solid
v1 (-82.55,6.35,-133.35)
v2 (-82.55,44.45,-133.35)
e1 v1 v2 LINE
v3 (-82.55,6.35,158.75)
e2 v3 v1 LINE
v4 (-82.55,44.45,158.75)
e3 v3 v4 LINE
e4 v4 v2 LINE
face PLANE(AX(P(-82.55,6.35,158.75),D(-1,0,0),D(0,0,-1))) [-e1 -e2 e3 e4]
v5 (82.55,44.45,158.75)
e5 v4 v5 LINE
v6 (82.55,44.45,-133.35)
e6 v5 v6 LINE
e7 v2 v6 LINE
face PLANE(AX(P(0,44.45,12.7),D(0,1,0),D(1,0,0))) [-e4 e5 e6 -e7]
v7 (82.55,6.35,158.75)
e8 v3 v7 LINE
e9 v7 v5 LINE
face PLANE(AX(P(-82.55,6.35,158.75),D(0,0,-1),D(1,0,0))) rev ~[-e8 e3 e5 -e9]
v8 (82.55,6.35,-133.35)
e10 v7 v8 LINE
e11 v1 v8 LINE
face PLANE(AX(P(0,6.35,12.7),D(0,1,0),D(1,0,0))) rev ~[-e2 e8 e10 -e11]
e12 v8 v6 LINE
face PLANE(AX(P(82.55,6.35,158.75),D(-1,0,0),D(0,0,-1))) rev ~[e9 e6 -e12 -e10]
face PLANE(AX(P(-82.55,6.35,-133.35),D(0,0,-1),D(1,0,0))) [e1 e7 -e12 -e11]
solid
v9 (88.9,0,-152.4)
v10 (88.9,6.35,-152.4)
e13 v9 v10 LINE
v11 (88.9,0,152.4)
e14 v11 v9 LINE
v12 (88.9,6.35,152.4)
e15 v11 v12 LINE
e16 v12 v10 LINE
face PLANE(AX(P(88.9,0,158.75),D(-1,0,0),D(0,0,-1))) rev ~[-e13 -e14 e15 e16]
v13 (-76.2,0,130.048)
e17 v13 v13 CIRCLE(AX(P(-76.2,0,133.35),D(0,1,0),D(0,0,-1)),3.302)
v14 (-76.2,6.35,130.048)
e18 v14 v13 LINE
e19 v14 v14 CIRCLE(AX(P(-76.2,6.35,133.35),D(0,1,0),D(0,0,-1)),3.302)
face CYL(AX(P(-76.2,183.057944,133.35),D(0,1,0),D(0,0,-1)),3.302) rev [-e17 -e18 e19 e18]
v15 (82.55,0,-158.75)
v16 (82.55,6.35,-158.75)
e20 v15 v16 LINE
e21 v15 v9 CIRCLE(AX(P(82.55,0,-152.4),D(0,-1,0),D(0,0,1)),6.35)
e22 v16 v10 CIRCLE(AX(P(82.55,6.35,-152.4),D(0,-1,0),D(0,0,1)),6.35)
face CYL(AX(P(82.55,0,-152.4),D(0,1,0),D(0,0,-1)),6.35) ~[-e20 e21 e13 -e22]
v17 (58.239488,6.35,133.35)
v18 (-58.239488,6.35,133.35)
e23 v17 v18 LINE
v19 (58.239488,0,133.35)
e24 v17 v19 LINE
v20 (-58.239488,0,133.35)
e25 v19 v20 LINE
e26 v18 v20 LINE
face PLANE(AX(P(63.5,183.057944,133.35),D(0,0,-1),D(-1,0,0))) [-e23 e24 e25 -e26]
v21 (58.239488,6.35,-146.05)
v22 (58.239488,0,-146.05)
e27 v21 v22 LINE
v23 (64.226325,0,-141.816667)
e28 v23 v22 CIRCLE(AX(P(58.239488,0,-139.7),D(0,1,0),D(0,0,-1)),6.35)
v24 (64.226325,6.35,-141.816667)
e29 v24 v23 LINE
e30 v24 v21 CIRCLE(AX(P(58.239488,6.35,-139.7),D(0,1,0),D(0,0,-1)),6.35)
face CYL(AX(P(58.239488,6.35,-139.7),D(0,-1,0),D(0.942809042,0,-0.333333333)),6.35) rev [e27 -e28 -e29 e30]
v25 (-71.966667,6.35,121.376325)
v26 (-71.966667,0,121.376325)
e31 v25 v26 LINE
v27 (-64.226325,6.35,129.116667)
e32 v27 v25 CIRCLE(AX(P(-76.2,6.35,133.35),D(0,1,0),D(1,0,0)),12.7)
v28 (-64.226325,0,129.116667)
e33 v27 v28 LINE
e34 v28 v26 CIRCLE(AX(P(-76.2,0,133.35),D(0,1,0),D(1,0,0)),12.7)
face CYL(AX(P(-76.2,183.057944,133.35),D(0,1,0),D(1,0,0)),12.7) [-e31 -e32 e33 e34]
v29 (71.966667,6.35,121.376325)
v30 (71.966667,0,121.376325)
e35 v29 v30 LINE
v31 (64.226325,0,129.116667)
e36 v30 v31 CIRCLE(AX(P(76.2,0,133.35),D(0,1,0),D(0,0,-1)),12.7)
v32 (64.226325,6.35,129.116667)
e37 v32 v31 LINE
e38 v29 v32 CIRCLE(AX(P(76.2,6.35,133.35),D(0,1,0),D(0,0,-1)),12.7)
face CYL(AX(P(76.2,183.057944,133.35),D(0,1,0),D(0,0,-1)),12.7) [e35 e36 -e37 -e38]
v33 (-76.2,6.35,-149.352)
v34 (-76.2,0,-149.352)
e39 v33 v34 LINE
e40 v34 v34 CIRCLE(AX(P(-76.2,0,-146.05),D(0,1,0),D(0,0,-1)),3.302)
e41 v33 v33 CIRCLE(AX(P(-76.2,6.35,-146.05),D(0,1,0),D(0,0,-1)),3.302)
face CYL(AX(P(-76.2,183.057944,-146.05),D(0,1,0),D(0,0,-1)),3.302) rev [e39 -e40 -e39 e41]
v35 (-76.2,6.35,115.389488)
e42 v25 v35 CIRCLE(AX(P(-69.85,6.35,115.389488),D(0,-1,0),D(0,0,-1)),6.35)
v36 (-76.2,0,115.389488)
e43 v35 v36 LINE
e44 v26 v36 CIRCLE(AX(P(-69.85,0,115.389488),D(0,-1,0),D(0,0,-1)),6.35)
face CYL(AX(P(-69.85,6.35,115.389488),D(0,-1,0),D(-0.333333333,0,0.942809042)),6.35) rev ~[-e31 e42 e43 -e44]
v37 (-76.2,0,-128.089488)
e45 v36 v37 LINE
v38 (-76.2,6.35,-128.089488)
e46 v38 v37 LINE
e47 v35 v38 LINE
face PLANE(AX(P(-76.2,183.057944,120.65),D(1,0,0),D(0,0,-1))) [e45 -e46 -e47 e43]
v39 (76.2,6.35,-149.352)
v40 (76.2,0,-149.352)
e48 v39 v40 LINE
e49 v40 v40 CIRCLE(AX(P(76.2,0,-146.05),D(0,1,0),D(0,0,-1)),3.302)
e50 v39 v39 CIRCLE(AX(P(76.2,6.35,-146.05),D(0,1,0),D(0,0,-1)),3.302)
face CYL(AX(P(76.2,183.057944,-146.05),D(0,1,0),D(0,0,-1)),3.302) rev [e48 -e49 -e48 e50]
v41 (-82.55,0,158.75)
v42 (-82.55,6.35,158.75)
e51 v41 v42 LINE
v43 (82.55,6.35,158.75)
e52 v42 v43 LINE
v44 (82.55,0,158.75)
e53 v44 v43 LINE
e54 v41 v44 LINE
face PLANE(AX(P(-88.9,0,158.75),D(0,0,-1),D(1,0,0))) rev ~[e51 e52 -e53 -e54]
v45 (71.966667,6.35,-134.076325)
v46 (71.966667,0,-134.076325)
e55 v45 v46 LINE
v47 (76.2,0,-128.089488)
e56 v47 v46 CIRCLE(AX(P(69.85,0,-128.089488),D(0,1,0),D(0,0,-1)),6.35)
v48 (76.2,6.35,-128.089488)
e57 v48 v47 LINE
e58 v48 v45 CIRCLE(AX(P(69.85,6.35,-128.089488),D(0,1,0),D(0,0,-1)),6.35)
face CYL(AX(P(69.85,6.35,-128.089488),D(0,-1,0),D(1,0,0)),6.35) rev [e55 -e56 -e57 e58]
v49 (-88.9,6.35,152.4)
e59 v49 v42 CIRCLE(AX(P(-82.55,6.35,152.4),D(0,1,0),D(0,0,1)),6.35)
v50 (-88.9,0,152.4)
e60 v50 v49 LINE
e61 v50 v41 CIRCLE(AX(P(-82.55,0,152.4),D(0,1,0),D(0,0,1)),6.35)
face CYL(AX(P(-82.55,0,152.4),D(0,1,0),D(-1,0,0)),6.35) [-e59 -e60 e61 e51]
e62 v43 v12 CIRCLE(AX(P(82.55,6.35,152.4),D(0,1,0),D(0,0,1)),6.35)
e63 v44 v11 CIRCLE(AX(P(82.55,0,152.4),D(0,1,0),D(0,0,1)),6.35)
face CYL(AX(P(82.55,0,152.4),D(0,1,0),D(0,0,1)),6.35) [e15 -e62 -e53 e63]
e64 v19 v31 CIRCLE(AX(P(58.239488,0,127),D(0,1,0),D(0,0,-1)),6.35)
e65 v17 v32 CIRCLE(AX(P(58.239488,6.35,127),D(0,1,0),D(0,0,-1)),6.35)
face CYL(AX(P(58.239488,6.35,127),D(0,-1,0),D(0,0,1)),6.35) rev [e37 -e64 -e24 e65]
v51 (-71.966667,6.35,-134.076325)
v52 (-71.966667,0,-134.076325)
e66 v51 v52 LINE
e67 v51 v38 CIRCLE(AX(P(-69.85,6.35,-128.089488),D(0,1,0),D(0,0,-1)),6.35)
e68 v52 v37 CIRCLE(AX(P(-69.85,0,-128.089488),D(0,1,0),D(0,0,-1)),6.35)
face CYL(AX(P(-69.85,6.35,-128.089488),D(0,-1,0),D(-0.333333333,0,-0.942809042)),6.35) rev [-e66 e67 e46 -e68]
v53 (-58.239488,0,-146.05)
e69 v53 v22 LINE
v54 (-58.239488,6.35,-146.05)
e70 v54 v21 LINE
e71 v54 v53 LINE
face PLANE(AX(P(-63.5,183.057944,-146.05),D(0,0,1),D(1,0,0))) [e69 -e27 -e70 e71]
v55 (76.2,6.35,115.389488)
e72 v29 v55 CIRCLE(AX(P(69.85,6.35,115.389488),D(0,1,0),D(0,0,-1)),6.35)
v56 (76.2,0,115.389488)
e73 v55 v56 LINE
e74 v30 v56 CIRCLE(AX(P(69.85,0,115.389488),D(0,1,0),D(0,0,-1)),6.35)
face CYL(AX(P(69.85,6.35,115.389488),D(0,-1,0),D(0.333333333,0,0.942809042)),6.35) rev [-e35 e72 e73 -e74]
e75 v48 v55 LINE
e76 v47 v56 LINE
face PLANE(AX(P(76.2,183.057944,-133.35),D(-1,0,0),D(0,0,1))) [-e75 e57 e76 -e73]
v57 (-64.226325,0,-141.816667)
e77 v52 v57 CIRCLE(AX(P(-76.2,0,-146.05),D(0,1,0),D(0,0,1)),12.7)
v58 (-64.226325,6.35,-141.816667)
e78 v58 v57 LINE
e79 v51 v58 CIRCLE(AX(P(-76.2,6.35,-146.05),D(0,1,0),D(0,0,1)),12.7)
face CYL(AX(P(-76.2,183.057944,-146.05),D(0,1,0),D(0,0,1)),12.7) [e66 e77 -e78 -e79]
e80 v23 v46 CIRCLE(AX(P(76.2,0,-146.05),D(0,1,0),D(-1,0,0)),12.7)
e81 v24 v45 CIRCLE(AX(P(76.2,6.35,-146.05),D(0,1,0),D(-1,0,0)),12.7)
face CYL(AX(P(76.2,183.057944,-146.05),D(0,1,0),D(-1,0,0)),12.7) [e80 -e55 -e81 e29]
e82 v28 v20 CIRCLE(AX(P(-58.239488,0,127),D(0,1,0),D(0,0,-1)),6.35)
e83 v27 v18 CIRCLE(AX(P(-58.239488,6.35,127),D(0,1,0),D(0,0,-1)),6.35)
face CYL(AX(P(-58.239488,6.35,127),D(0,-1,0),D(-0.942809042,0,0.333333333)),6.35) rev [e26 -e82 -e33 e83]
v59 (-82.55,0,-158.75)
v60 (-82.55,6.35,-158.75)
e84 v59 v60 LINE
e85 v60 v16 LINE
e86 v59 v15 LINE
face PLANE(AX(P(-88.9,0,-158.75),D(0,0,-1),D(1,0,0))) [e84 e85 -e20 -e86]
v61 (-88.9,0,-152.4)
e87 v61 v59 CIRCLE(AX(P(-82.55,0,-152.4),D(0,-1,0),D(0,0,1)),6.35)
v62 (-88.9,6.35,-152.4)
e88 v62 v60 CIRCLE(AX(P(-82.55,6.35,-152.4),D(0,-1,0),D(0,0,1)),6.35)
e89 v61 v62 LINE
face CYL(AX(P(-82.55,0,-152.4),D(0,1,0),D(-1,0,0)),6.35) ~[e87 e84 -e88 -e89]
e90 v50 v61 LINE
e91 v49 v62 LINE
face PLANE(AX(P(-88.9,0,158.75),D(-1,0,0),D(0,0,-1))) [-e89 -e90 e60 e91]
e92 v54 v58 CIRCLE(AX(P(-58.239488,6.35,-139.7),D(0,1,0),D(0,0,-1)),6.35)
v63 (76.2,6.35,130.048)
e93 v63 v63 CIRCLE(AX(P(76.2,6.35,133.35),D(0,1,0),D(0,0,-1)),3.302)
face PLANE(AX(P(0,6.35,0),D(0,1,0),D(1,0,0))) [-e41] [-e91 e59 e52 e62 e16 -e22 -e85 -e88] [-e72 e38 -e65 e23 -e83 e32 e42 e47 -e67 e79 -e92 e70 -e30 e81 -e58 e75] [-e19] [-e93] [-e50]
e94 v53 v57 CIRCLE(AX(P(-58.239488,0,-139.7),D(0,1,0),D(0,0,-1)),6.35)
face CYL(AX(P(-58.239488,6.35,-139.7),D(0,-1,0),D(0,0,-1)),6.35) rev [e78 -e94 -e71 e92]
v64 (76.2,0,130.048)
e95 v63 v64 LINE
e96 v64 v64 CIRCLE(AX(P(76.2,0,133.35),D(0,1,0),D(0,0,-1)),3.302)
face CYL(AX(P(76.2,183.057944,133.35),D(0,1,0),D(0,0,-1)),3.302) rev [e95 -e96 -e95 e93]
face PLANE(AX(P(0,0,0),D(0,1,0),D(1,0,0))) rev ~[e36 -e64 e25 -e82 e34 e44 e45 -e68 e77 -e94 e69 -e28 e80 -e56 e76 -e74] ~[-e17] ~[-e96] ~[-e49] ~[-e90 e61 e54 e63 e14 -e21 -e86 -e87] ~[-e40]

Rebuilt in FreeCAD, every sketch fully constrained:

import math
import FreeCAD as App
import Part
import Sketcher
Q = App.Units.Quantity


def edges_at(feature, points):
    """Names of the edges that pass closest to the given points."""
    edges = feature.Shape.Edges
    near = lambda p: min(range(len(edges)), key=lambda i: edges[i].distToShape(Part.Vertex(*p))[0])
    return sorted({f"Edge{near(p) + 1}" for p in points})

doc = App.newDocument("Part")
body = doc.addObject("PartDesign::Body", "Body")

sketch1 = body.newObject("Sketcher::SketchObject", "Sketch")
sketch1.AttachmentSupport = (doc.getObject("XZ_Plane"), [""])
sketch1.MapMode = "FlatFace"
sketch1.addGeometry(Part.LineSegment(App.Vector(-89, -159, 0), App.Vector(-89, 159, 0)), False)
sketch1.addGeometry(Part.LineSegment(App.Vector(-89, 159, 0), App.Vector(89, 159, 0)), False)
sketch1.addGeometry(Part.LineSegment(App.Vector(89, 159, 0), App.Vector(89, -159, 0)), False)
sketch1.addGeometry(Part.LineSegment(App.Vector(89, -159, 0), App.Vector(-89, -159, 0)), False)
sketch1.addConstraint(Sketcher.Constraint("Coincident", 0, 2, 1, 1))
sketch1.addConstraint(Sketcher.Constraint("Coincident", 1, 2, 2, 1))
sketch1.addConstraint(Sketcher.Constraint("Coincident", 2, 2, 3, 1))
sketch1.addConstraint(Sketcher.Constraint("Coincident", 3, 2, 0, 1))
sketch1.addConstraint(Sketcher.Constraint("Vertical", 0))
sketch1.addConstraint(Sketcher.Constraint("Horizontal", 1))
sketch1.addConstraint(Sketcher.Constraint("Vertical", 2))
sketch1.addConstraint(Sketcher.Constraint("Horizontal", 3))
sketch1.addConstraint(Sketcher.Constraint("Symmetric", 0, 2, 2, 2, -1, 1))
sketch1.addConstraint(Sketcher.Constraint("DistanceX", 1, 1, 1, 2, Q("7 in")))
sketch1.addConstraint(Sketcher.Constraint("DistanceY", 0, 1, 0, 2, Q("12.5 in")))
pad1 = body.newObject("PartDesign::Pad", "Pad")
pad1.Profile = sketch1
pad1.Length = Q("0.25 in")
pad1.Reversed = True

sketch2 = body.newObject("Sketcher::SketchObject", "Sketch001")
sketch2.AttachmentSupport = (doc.getObject("XZ_Plane"), [""])
sketch2.MapMode = "FlatFace"
sketch2.addGeometry(Part.Circle(App.Vector(-76.2, -146.1, 0), App.Vector(0, 0, 1), 3.3), False)
sketch2.addGeometry(Part.Circle(App.Vector(76.2, -146.1, 0), App.Vector(0, 0, 1), 3.3), False)
sketch2.addGeometry(Part.Circle(App.Vector(76.2, 133.3, 0), App.Vector(0, 0, 1), 3.3), False)
sketch2.addGeometry(Part.Circle(App.Vector(-76.2, 133.3, 0), App.Vector(0, 0, 1), 3.3), False)
sketch2.addConstraint(Sketcher.Constraint("Equal", 0, 1))
sketch2.addConstraint(Sketcher.Constraint("Equal", 1, 2))
sketch2.addConstraint(Sketcher.Constraint("Equal", 2, 3))
sketch2.addConstraint(Sketcher.Constraint("Symmetric", 0, 3, 1, 3, -2))
sketch2.addConstraint(Sketcher.Constraint("Symmetric", 2, 3, 3, 3, -2))
sketch2.addConstraint(Sketcher.Constraint("Vertical", 1, 3, 2, 3))
sketch2.addConstraint(Sketcher.Constraint("Diameter", 0, Q("0.26 in")))
sketch2.addConstraint(Sketcher.Constraint("DistanceX", 0, 3, -1, 1, Q("3 in")))
sketch2.addConstraint(Sketcher.Constraint("DistanceY", 1, 3, 2, 3, Q("11 in")))
sketch2.addConstraint(Sketcher.Constraint("DistanceY", 0, 3, -1, 1, Q("5.75 in")))
pocket1 = body.newObject("PartDesign::Pocket", "Pocket")
pocket1.Profile = sketch2
pocket1.Type = "ThroughAll"
pocket1.Midplane = True

sketch3 = body.newObject("Sketcher::SketchObject", "Sketch002")
sketch3.AttachmentSupport = (doc.getObject("XZ_Plane"), [""])
sketch3.MapMode = "FlatFace"
sketch3.addGeometry(Part.LineSegment(App.Vector(-76, 121, 0), App.Vector(-76, -133, 0)), False)
sketch3.addGeometry(Part.ArcOfCircle(Part.Circle(App.Vector(-76, -146, 0), App.Vector(0, 0, 1), 13), math.radians(0), math.radians(90)), False)
sketch3.addGeometry(Part.LineSegment(App.Vector(-64, -146, 0), App.Vector(64, -146, 0)), False)
sketch3.addGeometry(Part.ArcOfCircle(Part.Circle(App.Vector(76, -146, 0), App.Vector(0, 0, 1), 13), math.radians(90), math.radians(180)), False)
sketch3.addGeometry(Part.LineSegment(App.Vector(76, -133, 0), App.Vector(76, 121, 0)), False)
sketch3.addGeometry(Part.ArcOfCircle(Part.Circle(App.Vector(76, 133, 0), App.Vector(0, 0, 1), 13), math.radians(180), math.radians(270)), False)
sketch3.addGeometry(Part.LineSegment(App.Vector(64, 133, 0), App.Vector(-64, 133, 0)), False)
sketch3.addGeometry(Part.ArcOfCircle(Part.Circle(App.Vector(-76, 133, 0), App.Vector(0, 0, 1), 13), math.radians(-90), math.radians(0)), False)
sketch3.addConstraint(Sketcher.Constraint("Coincident", 0, 2, 1, 2))
sketch3.addConstraint(Sketcher.Constraint("Coincident", 1, 1, 2, 1))
sketch3.addConstraint(Sketcher.Constraint("Coincident", 2, 2, 3, 2))
sketch3.addConstraint(Sketcher.Constraint("Coincident", 3, 1, 4, 1))
sketch3.addConstraint(Sketcher.Constraint("Coincident", 4, 2, 5, 2))
sketch3.addConstraint(Sketcher.Constraint("Coincident", 5, 1, 6, 1))
sketch3.addConstraint(Sketcher.Constraint("Coincident", 6, 2, 7, 2))
sketch3.addConstraint(Sketcher.Constraint("Coincident", 7, 1, 0, 1))
sketch3.addConstraint(Sketcher.Constraint("Vertical", 0))
sketch3.addConstraint(Sketcher.Constraint("Horizontal", 2))
sketch3.addConstraint(Sketcher.Constraint("Vertical", 4))
sketch3.addConstraint(Sketcher.Constraint("Horizontal", 6))
sketch3.addConstraint(Sketcher.Constraint("Equal", 1, 3))
sketch3.addConstraint(Sketcher.Constraint("Equal", 3, 5))
sketch3.addConstraint(Sketcher.Constraint("Equal", 5, 7))
sketch3.addConstraint(Sketcher.Constraint("Symmetric", 1, 3, 3, 3, -2))
sketch3.addConstraint(Sketcher.Constraint("Symmetric", 5, 3, 7, 3, -2))
sketch3.addConstraint(Sketcher.Constraint("Horizontal", 3, 3, 1, 1))
sketch3.addConstraint(Sketcher.Constraint("Horizontal", 7, 3, 5, 1))
sketch3.addConstraint(Sketcher.Constraint("Vertical", 3, 3, 5, 3))
sketch3.addConstraint(Sketcher.Constraint("Vertical", 7, 3, 0, 2))
sketch3.addConstraint(Sketcher.Constraint("Vertical", 5, 3, 3, 1))
sketch3.addConstraint(Sketcher.Constraint("Radius", 1, Q("0.5 in")))
sketch3.addConstraint(Sketcher.Constraint("DistanceX", 2, 1, 2, 2, Q("5 in")))
sketch3.addConstraint(Sketcher.Constraint("DistanceY", 0, 2, 0, 1, Q("10 in")))
sketch3.addConstraint(Sketcher.Constraint("DistanceY", 1, 3, -1, 1, Q("5.75 in")))
pocket2 = body.newObject("PartDesign::Pocket", "Pocket001")
pocket2.Profile = sketch3
pocket2.Type = "ThroughAll"
pocket2.Midplane = True
doc.recompute()

fillet = body.newObject("PartDesign::Fillet", "Fillet")
fillet.Base = (pocket2, edges_at(pocket2, [
    (-76.2, 3.175, 120.65),
    (-63.5, 3.175, 133.35),
    (63.5, 3.175, 133.35),
    (76.2, 3.175, 120.65),
    (76.2, 3.175, -133.35),
    (63.5, 3.175, -146.05),
    (-63.5, 3.175, -146.05),
    (-76.2, 3.175, -133.35),
    (88.9, 3.175, 158.75),
    (-88.9, 3.175, 158.75),
    (-88.9, 3.175, -158.75),
    (88.9, 3.175, -158.75),
]))
fillet.Radius = Q("0.25 in")
body2 = doc.addObject("PartDesign::Body", "Body001")

sketch4 = body2.newObject("Sketcher::SketchObject", "Sketch003")
sketch4.AttachmentSupport = (doc.getObject("XZ_Plane001"), [""])
sketch4.MapMode = "FlatFace"
sketch4.AttachmentOffset = App.Placement(App.Vector(0, 0, -0.25 * 25.4), App.Rotation())
sketch4.addGeometry(Part.LineSegment(App.Vector(-83, -133, 0), App.Vector(-83, 159, 0)), False)
sketch4.addGeometry(Part.LineSegment(App.Vector(-83, 159, 0), App.Vector(83, 159, 0)), False)
sketch4.addGeometry(Part.LineSegment(App.Vector(83, 159, 0), App.Vector(83, -133, 0)), False)
sketch4.addGeometry(Part.LineSegment(App.Vector(83, -133, 0), App.Vector(-83, -133, 0)), False)
sketch4.addConstraint(Sketcher.Constraint("Coincident", 0, 2, 1, 1))
sketch4.addConstraint(Sketcher.Constraint("Coincident", 1, 2, 2, 1))
sketch4.addConstraint(Sketcher.Constraint("Coincident", 2, 2, 3, 1))
sketch4.addConstraint(Sketcher.Constraint("Coincident", 3, 2, 0, 1))
sketch4.addConstraint(Sketcher.Constraint("Vertical", 0))
sketch4.addConstraint(Sketcher.Constraint("Horizontal", 1))
sketch4.addConstraint(Sketcher.Constraint("Vertical", 2))
sketch4.addConstraint(Sketcher.Constraint("Horizontal", 3))
sketch4.addConstraint(Sketcher.Constraint("DistanceX", 1, 1, 1, 2, Q("6.5 in")))
sketch4.addConstraint(Sketcher.Constraint("DistanceY", 0, 1, 0, 2, Q("11.5 in")))
sketch4.addConstraint(Sketcher.Constraint("DistanceX", 0, 2, -1, 1, Q("3.25 in")))
sketch4.addConstraint(Sketcher.Constraint("DistanceY", -1, 1, 0, 2, Q("6.25 in")))
pad2 = body2.newObject("PartDesign::Pad", "Pad001")
pad2.Profile = sketch4
pad2.Length = Q("1.5 in")
pad2.Reversed = True

doc.recompute()
